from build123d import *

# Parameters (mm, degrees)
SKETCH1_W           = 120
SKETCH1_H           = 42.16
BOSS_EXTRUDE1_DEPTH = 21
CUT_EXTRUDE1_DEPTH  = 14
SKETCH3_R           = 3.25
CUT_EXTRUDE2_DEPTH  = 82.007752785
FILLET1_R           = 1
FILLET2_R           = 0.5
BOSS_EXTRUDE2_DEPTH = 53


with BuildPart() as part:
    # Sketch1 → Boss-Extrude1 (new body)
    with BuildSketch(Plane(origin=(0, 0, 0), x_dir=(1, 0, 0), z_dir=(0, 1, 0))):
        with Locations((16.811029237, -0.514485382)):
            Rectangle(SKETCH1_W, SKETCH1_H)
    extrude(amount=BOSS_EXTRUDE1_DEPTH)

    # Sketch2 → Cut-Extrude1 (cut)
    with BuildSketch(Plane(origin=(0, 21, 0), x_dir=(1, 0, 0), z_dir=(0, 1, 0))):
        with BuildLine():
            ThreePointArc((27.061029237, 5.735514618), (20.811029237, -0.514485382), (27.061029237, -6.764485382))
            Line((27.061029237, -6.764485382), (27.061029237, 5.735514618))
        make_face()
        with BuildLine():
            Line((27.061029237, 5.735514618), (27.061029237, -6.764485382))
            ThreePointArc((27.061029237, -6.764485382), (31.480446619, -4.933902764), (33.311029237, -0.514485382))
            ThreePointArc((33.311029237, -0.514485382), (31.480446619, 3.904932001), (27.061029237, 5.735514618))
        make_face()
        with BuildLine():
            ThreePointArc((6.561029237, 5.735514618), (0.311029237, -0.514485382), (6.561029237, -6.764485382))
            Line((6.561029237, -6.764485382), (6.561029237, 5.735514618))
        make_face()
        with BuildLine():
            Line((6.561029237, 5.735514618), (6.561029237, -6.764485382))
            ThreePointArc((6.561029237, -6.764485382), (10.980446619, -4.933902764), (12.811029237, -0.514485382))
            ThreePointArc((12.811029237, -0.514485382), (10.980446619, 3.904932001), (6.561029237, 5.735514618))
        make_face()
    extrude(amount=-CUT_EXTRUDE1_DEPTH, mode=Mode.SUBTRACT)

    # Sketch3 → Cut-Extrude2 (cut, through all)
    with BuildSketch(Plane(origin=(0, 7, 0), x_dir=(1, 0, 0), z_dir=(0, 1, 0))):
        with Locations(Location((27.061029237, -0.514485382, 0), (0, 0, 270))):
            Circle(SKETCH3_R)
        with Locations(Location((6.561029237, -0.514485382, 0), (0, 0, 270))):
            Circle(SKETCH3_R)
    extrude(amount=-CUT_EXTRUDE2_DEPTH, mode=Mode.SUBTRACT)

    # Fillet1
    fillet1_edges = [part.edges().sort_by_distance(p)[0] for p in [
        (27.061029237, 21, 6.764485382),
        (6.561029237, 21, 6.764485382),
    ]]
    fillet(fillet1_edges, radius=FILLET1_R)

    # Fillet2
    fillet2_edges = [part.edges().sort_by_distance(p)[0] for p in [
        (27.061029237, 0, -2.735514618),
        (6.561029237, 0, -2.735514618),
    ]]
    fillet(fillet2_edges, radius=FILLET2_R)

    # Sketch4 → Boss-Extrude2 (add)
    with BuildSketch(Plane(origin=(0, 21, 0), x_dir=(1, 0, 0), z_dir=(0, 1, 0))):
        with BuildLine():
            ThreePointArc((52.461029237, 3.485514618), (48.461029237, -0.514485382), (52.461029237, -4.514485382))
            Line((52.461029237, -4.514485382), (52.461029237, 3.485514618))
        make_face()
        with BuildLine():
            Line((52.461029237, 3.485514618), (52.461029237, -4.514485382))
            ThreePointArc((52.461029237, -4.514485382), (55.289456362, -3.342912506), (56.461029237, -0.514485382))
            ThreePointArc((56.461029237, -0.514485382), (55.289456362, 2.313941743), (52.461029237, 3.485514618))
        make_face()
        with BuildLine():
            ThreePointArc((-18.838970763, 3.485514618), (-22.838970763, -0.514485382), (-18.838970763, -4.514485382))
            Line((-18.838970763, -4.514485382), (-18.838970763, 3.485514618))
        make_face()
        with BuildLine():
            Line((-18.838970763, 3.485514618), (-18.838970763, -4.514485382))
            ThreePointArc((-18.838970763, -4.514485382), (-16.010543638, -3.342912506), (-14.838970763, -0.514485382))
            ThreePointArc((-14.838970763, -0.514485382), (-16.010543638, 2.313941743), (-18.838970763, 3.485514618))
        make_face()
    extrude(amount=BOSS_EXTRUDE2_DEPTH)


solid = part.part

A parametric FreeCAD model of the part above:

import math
import FreeCAD as App
import Part
import Sketcher

V = App.Vector
Q = App.Units.Quantity


def edges_at(feature, points):
    """Names of the edges that pass closest to the given points."""
    edges = feature.Shape.Edges
    near = lambda p: min(range(len(edges)), key=lambda i: edges[i].distToShape(Part.Vertex(*p))[0])
    return sorted({f"Edge{near(p) + 1}" for p in points})

doc = App.newDocument("Part")
body = doc.addObject("PartDesign::Body", "Body")

sketch1 = body.newObject("Sketcher::SketchObject", "Sketch")
sketch1.AttachmentSupport = (doc.getObject("XZ_Plane"), [""])
sketch1.MapMode = "FlatFace"
sketch1.addGeometry([
    Part.LineSegment(V(-43, -21, 0), V(-43, 22, 0)),
    Part.LineSegment(V(-43, 22, 0), V(77, 22, 0)),
    Part.LineSegment(V(77, 22, 0), V(77, -21, 0)),
    Part.LineSegment(V(77, -21, 0), V(-43, -21, 0)),
], False)
sketch1.addConstraint([
    Sketcher.Constraint("Coincident", 0, 2, 1, 1),
    Sketcher.Constraint("Coincident", 1, 2, 2, 1),
    Sketcher.Constraint("Coincident", 2, 2, 3, 1),
    Sketcher.Constraint("Coincident", 3, 2, 0, 1),
    Sketcher.Constraint("Vertical", 0),
    Sketcher.Constraint("Horizontal", 1),
    Sketcher.Constraint("Vertical", 2),
    Sketcher.Constraint("Horizontal", 3),
    Sketcher.Constraint("DistanceX", 1, 1, 1, 2, Q("120 mm")),
    Sketcher.Constraint("DistanceY", 0, 1, 0, 2, Q("42.16 mm")),
    Sketcher.Constraint("DistanceX", 0, 2, -1, 1, Q("43.188971 mm")),
    Sketcher.Constraint("DistanceY", -1, 1, 0, 2, Q("21.594485 mm")),
])
pad1 = body.newObject("PartDesign::Pad", "Pad")
pad1.Profile = sketch1
pad1.Length = 21
pad1.Reversed = True

sketch2 = body.newObject("Sketcher::SketchObject", "Sketch001")
sketch2.AttachmentSupport = (doc.getObject("XZ_Plane"), [""])
sketch2.MapMode = "FlatFace"
sketch2.AttachmentOffset = App.Placement(V(0, 0, -21), App.Rotation())
sketch2.addGeometry([
    Part.ArcOfCircle(Part.Circle(V(27, 1, 0), V(0, 0, 1), 6), math.radians(90), math.radians(270)),
    Part.ArcOfCircle(Part.Circle(V(27, 1, 0), V(0, 0, 1), 6), math.radians(0), math.radians(90)),
    Part.ArcOfCircle(Part.Circle(V(27, 1, 0), V(0, 0, 1), 6), math.radians(-90), math.radians(0)),
    Part.ArcOfCircle(Part.Circle(V(7, 1, 0), V(0, 0, 1), 6), math.radians(90), math.radians(270)),
    Part.ArcOfCircle(Part.Circle(V(7, 1, 0), V(0, 0, 1), 6), math.radians(0), math.radians(90)),
    Part.ArcOfCircle(Part.Circle(V(7, 1, 0), V(0, 0, 1), 6), math.radians(-90), math.radians(0)),
], False)
sketch2.addConstraint([
    Sketcher.Constraint("Tangent", 0, 1, 1, 2),
    Sketcher.Constraint("Tangent", 1, 1, 2, 2),
    Sketcher.Constraint("Tangent", 2, 1, 0, 2),
    Sketcher.Constraint("Tangent", 3, 1, 4, 2),
    Sketcher.Constraint("Tangent", 4, 1, 5, 2),
    Sketcher.Constraint("Tangent", 5, 1, 3, 2),
    Sketcher.Constraint("Equal", 2, 3),
    Sketcher.Constraint("Horizontal", 2, 3, 3, 3),
    Sketcher.Constraint("Horizontal", 5, 3, 1, 1),
    Sketcher.Constraint("Horizontal", 1, 1, 4, 1),
    Sketcher.Constraint("Vertical", 2, 3, 0, 1),
    Sketcher.Constraint("Vertical", 0, 1, 2, 1),
    Sketcher.Constraint("Vertical", 5, 3, 3, 1),
    Sketcher.Constraint("Vertical", 3, 1, 5, 1),
    Sketcher.Constraint("Radius", 0, Q("6.25 mm")),
    Sketcher.Constraint("DistanceX", 3, 3, 1, 3, Q("20.5 mm")),
    Sketcher.Constraint("DistanceX", -1, 1, 0, 3, Q("27.061029 mm")),
    Sketcher.Constraint("DistanceY", -1, 1, 0, 3, Q("0.514485 mm")),
])
pocket1 = body.newObject("PartDesign::Pocket", "Pocket")
pocket1.Profile = sketch2
pocket1.Length = 14
pocket1.Reversed = True

sketch3 = body.newObject("Sketcher::SketchObject", "Sketch002")
sketch3.AttachmentSupport = (doc.getObject("XZ_Plane"), [""])
sketch3.MapMode = "FlatFace"
sketch3.AttachmentOffset = App.Placement(V(0, 0, -7), App.Rotation())
sketch3.addGeometry([
    Part.Circle(V(27.1, 0.5, 0), V(0, 0, 1), 3.2),
    Part.Circle(V(6.6, 0.5, 0), V(0, 0, 1), 3.2),
], False)
sketch3.addConstraint([
    Sketcher.Constraint("Equal", 0, 1),
    Sketcher.Constraint("Horizontal", 0, 3, 1, 3),
    Sketcher.Constraint("Diameter", 0, Q("6.5 mm")),
    Sketcher.Constraint("DistanceX", 1, 3, 0, 3, Q("20.5 mm")),
    Sketcher.Constraint("DistanceX", -1, 1, 0, 3, Q("27.061029 mm")),
    Sketcher.Constraint("DistanceY", -1, 1, 0, 3, Q("0.514485 mm")),
])
pocket2 = body.newObject("PartDesign::Pocket", "Pocket001")
pocket2.Profile = sketch3
pocket2.Type = "ThroughAll"
pocket2.Reversed = True
doc.recompute()

fillet = body.newObject("PartDesign::Fillet", "Fillet")
fillet.Base = (pocket2, edges_at(pocket2, [(20.811, 21, 0.514), (0.311, 21, 0.514)]))
fillet.Radius = 1
doc.recompute()

fillet2 = body.newObject("PartDesign::Fillet", "Fillet001")
fillet2.Base = (fillet, edges_at(fillet, [(27.061, 0, -2.736), (6.561, 0, -2.736)]))
fillet2.Radius = 0.5

sketch4 = body.newObject("Sketcher::SketchObject", "Sketch003")
sketch4.AttachmentSupport = (doc.getObject("XZ_Plane"), [""])
sketch4.MapMode = "FlatFace"
sketch4.AttachmentOffset = App.Placement(V(0, 0, -21), App.Rotation())
sketch4.addGeometry([
    Part.ArcOfCircle(Part.Circle(V(52.5, 0.5, 0), V(0, 0, 1), 4), math.radians(90), math.radians(270)),
    Part.ArcOfCircle(Part.Circle(V(52.5, 0.5, 0), V(0, 0, 1), 4), math.radians(0), math.radians(90)),
    Part.ArcOfCircle(Part.Circle(V(52.5, 0.5, 0), V(0, 0, 1), 4), math.radians(-90), math.radians(0)),
    Part.ArcOfCircle(Part.Circle(V(-18.8, 0.5, 0), V(0, 0, 1), 4), math.radians(90), math.radians(270)),
    Part.ArcOfCircle(Part.Circle(V(-18.8, 0.5, 0), V(0, 0, 1), 4), math.radians(0), math.radians(90)),
    Part.ArcOfCircle(Part.Circle(V(-18.8, 0.5, 0), V(0, 0, 1), 4), math.radians(-90), math.radians(0)),
], False)
sketch4.addConstraint([
    Sketcher.Constraint("Tangent", 0, 1, 1, 2),
    Sketcher.Constraint("Tangent", 1, 1, 2, 2),
    Sketcher.Constraint("Tangent", 2, 1, 0, 2),
    Sketcher.Constraint("Tangent", 3, 1, 4, 2),
    Sketcher.Constraint("Tangent", 4, 1, 5, 2),
    Sketcher.Constraint("Tangent", 5, 1, 3, 2),
    Sketcher.Constraint("Equal", 2, 3),
    Sketcher.Constraint("Horizontal", 2, 3, 3, 3),
    Sketcher.Constraint("Horizontal", 5, 3, 1, 1),
    Sketcher.Constraint("Horizontal", 1, 1, 4, 1),
    Sketcher.Constraint("Vertical", 2, 3, 0, 1),
    Sketcher.Constraint("Vertical", 0, 1, 2, 1),
    Sketcher.Constraint("Vertical", 5, 3, 3, 1),
    Sketcher.Constraint("Vertical", 3, 1, 5, 1),
    Sketcher.Constraint("Radius", 0, Q("4 mm")),
    Sketcher.Constraint("DistanceX", 3, 3, 1, 3, Q("71.3 mm")),
    Sketcher.Constraint("DistanceX", -1, 1, 0, 3, Q("52.461029 mm")),
    Sketcher.Constraint("DistanceY", -1, 1, 0, 3, Q("0.514485 mm")),
])
pad2 = body.newObject("PartDesign::Pad", "Pad001")
pad2.Profile = sketch4
pad2.Length = 53
pad2.Reversed = True

doc.recompute()
